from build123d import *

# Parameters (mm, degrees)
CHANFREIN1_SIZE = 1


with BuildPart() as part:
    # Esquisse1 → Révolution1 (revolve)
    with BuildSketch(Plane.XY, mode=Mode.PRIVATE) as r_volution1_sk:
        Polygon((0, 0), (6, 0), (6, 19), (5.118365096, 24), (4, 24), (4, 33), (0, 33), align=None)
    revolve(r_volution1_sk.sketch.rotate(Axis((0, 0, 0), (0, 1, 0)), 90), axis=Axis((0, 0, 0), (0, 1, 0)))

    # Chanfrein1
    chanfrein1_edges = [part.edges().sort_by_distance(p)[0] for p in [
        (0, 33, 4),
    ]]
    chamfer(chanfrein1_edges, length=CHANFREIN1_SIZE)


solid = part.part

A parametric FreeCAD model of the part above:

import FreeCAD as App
import Part
import Sketcher
from FreeCAD import Vector
Q = App.Units.Quantity


def edges_at(feature, points):
    """Names of the edges that pass closest to the given points."""
    edges = feature.Shape.Edges
    near = lambda p: min(range(len(edges)), key=lambda i: edges[i].distToShape(Part.Vertex(*p))[0])
    return sorted({f"Edge{near(p) + 1}" for p in points})


def add_polygon(sketch, points):
    """Adds a closed chain of lines whose ends are joined by coincident constraints."""
    first, n = sketch.GeometryCount, len(points)
    for a, b in zip(points, points[1:] + points[:1]):
        sketch.addGeometry(Part.LineSegment(App.Vector(*a, 0), App.Vector(*b, 0)), False)
    for i in range(n):
        sketch.addConstraint(Sketcher.Constraint("Coincident", first + i, 2, first + (i + 1) % n, 1))

doc = App.newDocument("Part")
params = doc.addObject("Spreadsheet::Sheet", "Params")
for row, (alias, value) in enumerate([
    ("sketch1_width", "6 mm"),
    ("sketch1_width2", "4 mm"),
    ("sketch1_height", "19 mm"),
    ("sketch1_height2", "9 mm"),
    ("sketch1_height3", "33 mm"),
    ("revolution_angle", "360 deg"),
    ("chamfer_size", "1 mm"),
], start=1):
    params.set(f"A{row}", alias)
    params.set(f"B{row}", "=" + value)
    params.setAlias(f"B{row}", alias)

body = doc.addObject("PartDesign::Body", "Body")

sketch1 = doc.addObject("Sketcher::SketchObject", "Sketch")
body.addObject(sketch1)
sketch1.AttachmentSupport = (doc.XY_Plane, [""])
sketch1.MapMode = "FlatFace"
add_polygon(sketch1, [(0, 0), (6, 0), (6, 19), (5.1, 24), (4, 24), (4, 33), (0, 33)])
sketch1.addConstraint([
    Sketcher.Constraint("Horizontal", 0),
    Sketcher.Constraint("Vertical", 1),
    Sketcher.Constraint("Horizontal", 3),
    Sketcher.Constraint("Vertical", 4),
    Sketcher.Constraint("Horizontal", 5),
    Sketcher.Constraint("Vertical", 6),
    Sketcher.Constraint("Coincident", 6, 2, -1, 1),
    Sketcher.Constraint("DistanceX", 0, 1, 0, 2, Q("6 mm")),
    Sketcher.Constraint("DistanceX", 5, 2, 5, 1, Q("4 mm")),
    Sketcher.Constraint("DistanceY", 1, 1, 1, 2, Q("19 mm")),
    Sketcher.Constraint("DistanceY", 4, 1, 4, 2, Q("9 mm")),
    Sketcher.Constraint("DistanceY", 6, 2, 6, 1, Q("33 mm")),
    Sketcher.Constraint("Angle", 2, Q("100 deg")),
])
sketch1.setExpression("Constraints[14]", "Params.sketch1_width")
sketch1.setExpression("Constraints[15]", "Params.sketch1_width2")
sketch1.setExpression("Constraints[16]", "Params.sketch1_height")
sketch1.setExpression("Constraints[17]", "Params.sketch1_height2")
sketch1.setExpression("Constraints[18]", "Params.sketch1_height3")
revolution = doc.addObject("PartDesign::Revolution", "Revolution")
body.addObject(revolution)
revolution.Profile = sketch1
revolution.ReferenceAxis = (sketch1, ["V_Axis"])
revolution.setExpression("Angle", "Params.revolution_angle")
doc.recompute()

chamfer = doc.addObject("PartDesign::Chamfer", "Chamfer")
body.addObject(chamfer)
chamfer.Base = (revolution, edges_at(revolution, [(0, 33, 4)]))
chamfer.setExpression("Size", "Params.chamfer_size")

doc.recompute()
